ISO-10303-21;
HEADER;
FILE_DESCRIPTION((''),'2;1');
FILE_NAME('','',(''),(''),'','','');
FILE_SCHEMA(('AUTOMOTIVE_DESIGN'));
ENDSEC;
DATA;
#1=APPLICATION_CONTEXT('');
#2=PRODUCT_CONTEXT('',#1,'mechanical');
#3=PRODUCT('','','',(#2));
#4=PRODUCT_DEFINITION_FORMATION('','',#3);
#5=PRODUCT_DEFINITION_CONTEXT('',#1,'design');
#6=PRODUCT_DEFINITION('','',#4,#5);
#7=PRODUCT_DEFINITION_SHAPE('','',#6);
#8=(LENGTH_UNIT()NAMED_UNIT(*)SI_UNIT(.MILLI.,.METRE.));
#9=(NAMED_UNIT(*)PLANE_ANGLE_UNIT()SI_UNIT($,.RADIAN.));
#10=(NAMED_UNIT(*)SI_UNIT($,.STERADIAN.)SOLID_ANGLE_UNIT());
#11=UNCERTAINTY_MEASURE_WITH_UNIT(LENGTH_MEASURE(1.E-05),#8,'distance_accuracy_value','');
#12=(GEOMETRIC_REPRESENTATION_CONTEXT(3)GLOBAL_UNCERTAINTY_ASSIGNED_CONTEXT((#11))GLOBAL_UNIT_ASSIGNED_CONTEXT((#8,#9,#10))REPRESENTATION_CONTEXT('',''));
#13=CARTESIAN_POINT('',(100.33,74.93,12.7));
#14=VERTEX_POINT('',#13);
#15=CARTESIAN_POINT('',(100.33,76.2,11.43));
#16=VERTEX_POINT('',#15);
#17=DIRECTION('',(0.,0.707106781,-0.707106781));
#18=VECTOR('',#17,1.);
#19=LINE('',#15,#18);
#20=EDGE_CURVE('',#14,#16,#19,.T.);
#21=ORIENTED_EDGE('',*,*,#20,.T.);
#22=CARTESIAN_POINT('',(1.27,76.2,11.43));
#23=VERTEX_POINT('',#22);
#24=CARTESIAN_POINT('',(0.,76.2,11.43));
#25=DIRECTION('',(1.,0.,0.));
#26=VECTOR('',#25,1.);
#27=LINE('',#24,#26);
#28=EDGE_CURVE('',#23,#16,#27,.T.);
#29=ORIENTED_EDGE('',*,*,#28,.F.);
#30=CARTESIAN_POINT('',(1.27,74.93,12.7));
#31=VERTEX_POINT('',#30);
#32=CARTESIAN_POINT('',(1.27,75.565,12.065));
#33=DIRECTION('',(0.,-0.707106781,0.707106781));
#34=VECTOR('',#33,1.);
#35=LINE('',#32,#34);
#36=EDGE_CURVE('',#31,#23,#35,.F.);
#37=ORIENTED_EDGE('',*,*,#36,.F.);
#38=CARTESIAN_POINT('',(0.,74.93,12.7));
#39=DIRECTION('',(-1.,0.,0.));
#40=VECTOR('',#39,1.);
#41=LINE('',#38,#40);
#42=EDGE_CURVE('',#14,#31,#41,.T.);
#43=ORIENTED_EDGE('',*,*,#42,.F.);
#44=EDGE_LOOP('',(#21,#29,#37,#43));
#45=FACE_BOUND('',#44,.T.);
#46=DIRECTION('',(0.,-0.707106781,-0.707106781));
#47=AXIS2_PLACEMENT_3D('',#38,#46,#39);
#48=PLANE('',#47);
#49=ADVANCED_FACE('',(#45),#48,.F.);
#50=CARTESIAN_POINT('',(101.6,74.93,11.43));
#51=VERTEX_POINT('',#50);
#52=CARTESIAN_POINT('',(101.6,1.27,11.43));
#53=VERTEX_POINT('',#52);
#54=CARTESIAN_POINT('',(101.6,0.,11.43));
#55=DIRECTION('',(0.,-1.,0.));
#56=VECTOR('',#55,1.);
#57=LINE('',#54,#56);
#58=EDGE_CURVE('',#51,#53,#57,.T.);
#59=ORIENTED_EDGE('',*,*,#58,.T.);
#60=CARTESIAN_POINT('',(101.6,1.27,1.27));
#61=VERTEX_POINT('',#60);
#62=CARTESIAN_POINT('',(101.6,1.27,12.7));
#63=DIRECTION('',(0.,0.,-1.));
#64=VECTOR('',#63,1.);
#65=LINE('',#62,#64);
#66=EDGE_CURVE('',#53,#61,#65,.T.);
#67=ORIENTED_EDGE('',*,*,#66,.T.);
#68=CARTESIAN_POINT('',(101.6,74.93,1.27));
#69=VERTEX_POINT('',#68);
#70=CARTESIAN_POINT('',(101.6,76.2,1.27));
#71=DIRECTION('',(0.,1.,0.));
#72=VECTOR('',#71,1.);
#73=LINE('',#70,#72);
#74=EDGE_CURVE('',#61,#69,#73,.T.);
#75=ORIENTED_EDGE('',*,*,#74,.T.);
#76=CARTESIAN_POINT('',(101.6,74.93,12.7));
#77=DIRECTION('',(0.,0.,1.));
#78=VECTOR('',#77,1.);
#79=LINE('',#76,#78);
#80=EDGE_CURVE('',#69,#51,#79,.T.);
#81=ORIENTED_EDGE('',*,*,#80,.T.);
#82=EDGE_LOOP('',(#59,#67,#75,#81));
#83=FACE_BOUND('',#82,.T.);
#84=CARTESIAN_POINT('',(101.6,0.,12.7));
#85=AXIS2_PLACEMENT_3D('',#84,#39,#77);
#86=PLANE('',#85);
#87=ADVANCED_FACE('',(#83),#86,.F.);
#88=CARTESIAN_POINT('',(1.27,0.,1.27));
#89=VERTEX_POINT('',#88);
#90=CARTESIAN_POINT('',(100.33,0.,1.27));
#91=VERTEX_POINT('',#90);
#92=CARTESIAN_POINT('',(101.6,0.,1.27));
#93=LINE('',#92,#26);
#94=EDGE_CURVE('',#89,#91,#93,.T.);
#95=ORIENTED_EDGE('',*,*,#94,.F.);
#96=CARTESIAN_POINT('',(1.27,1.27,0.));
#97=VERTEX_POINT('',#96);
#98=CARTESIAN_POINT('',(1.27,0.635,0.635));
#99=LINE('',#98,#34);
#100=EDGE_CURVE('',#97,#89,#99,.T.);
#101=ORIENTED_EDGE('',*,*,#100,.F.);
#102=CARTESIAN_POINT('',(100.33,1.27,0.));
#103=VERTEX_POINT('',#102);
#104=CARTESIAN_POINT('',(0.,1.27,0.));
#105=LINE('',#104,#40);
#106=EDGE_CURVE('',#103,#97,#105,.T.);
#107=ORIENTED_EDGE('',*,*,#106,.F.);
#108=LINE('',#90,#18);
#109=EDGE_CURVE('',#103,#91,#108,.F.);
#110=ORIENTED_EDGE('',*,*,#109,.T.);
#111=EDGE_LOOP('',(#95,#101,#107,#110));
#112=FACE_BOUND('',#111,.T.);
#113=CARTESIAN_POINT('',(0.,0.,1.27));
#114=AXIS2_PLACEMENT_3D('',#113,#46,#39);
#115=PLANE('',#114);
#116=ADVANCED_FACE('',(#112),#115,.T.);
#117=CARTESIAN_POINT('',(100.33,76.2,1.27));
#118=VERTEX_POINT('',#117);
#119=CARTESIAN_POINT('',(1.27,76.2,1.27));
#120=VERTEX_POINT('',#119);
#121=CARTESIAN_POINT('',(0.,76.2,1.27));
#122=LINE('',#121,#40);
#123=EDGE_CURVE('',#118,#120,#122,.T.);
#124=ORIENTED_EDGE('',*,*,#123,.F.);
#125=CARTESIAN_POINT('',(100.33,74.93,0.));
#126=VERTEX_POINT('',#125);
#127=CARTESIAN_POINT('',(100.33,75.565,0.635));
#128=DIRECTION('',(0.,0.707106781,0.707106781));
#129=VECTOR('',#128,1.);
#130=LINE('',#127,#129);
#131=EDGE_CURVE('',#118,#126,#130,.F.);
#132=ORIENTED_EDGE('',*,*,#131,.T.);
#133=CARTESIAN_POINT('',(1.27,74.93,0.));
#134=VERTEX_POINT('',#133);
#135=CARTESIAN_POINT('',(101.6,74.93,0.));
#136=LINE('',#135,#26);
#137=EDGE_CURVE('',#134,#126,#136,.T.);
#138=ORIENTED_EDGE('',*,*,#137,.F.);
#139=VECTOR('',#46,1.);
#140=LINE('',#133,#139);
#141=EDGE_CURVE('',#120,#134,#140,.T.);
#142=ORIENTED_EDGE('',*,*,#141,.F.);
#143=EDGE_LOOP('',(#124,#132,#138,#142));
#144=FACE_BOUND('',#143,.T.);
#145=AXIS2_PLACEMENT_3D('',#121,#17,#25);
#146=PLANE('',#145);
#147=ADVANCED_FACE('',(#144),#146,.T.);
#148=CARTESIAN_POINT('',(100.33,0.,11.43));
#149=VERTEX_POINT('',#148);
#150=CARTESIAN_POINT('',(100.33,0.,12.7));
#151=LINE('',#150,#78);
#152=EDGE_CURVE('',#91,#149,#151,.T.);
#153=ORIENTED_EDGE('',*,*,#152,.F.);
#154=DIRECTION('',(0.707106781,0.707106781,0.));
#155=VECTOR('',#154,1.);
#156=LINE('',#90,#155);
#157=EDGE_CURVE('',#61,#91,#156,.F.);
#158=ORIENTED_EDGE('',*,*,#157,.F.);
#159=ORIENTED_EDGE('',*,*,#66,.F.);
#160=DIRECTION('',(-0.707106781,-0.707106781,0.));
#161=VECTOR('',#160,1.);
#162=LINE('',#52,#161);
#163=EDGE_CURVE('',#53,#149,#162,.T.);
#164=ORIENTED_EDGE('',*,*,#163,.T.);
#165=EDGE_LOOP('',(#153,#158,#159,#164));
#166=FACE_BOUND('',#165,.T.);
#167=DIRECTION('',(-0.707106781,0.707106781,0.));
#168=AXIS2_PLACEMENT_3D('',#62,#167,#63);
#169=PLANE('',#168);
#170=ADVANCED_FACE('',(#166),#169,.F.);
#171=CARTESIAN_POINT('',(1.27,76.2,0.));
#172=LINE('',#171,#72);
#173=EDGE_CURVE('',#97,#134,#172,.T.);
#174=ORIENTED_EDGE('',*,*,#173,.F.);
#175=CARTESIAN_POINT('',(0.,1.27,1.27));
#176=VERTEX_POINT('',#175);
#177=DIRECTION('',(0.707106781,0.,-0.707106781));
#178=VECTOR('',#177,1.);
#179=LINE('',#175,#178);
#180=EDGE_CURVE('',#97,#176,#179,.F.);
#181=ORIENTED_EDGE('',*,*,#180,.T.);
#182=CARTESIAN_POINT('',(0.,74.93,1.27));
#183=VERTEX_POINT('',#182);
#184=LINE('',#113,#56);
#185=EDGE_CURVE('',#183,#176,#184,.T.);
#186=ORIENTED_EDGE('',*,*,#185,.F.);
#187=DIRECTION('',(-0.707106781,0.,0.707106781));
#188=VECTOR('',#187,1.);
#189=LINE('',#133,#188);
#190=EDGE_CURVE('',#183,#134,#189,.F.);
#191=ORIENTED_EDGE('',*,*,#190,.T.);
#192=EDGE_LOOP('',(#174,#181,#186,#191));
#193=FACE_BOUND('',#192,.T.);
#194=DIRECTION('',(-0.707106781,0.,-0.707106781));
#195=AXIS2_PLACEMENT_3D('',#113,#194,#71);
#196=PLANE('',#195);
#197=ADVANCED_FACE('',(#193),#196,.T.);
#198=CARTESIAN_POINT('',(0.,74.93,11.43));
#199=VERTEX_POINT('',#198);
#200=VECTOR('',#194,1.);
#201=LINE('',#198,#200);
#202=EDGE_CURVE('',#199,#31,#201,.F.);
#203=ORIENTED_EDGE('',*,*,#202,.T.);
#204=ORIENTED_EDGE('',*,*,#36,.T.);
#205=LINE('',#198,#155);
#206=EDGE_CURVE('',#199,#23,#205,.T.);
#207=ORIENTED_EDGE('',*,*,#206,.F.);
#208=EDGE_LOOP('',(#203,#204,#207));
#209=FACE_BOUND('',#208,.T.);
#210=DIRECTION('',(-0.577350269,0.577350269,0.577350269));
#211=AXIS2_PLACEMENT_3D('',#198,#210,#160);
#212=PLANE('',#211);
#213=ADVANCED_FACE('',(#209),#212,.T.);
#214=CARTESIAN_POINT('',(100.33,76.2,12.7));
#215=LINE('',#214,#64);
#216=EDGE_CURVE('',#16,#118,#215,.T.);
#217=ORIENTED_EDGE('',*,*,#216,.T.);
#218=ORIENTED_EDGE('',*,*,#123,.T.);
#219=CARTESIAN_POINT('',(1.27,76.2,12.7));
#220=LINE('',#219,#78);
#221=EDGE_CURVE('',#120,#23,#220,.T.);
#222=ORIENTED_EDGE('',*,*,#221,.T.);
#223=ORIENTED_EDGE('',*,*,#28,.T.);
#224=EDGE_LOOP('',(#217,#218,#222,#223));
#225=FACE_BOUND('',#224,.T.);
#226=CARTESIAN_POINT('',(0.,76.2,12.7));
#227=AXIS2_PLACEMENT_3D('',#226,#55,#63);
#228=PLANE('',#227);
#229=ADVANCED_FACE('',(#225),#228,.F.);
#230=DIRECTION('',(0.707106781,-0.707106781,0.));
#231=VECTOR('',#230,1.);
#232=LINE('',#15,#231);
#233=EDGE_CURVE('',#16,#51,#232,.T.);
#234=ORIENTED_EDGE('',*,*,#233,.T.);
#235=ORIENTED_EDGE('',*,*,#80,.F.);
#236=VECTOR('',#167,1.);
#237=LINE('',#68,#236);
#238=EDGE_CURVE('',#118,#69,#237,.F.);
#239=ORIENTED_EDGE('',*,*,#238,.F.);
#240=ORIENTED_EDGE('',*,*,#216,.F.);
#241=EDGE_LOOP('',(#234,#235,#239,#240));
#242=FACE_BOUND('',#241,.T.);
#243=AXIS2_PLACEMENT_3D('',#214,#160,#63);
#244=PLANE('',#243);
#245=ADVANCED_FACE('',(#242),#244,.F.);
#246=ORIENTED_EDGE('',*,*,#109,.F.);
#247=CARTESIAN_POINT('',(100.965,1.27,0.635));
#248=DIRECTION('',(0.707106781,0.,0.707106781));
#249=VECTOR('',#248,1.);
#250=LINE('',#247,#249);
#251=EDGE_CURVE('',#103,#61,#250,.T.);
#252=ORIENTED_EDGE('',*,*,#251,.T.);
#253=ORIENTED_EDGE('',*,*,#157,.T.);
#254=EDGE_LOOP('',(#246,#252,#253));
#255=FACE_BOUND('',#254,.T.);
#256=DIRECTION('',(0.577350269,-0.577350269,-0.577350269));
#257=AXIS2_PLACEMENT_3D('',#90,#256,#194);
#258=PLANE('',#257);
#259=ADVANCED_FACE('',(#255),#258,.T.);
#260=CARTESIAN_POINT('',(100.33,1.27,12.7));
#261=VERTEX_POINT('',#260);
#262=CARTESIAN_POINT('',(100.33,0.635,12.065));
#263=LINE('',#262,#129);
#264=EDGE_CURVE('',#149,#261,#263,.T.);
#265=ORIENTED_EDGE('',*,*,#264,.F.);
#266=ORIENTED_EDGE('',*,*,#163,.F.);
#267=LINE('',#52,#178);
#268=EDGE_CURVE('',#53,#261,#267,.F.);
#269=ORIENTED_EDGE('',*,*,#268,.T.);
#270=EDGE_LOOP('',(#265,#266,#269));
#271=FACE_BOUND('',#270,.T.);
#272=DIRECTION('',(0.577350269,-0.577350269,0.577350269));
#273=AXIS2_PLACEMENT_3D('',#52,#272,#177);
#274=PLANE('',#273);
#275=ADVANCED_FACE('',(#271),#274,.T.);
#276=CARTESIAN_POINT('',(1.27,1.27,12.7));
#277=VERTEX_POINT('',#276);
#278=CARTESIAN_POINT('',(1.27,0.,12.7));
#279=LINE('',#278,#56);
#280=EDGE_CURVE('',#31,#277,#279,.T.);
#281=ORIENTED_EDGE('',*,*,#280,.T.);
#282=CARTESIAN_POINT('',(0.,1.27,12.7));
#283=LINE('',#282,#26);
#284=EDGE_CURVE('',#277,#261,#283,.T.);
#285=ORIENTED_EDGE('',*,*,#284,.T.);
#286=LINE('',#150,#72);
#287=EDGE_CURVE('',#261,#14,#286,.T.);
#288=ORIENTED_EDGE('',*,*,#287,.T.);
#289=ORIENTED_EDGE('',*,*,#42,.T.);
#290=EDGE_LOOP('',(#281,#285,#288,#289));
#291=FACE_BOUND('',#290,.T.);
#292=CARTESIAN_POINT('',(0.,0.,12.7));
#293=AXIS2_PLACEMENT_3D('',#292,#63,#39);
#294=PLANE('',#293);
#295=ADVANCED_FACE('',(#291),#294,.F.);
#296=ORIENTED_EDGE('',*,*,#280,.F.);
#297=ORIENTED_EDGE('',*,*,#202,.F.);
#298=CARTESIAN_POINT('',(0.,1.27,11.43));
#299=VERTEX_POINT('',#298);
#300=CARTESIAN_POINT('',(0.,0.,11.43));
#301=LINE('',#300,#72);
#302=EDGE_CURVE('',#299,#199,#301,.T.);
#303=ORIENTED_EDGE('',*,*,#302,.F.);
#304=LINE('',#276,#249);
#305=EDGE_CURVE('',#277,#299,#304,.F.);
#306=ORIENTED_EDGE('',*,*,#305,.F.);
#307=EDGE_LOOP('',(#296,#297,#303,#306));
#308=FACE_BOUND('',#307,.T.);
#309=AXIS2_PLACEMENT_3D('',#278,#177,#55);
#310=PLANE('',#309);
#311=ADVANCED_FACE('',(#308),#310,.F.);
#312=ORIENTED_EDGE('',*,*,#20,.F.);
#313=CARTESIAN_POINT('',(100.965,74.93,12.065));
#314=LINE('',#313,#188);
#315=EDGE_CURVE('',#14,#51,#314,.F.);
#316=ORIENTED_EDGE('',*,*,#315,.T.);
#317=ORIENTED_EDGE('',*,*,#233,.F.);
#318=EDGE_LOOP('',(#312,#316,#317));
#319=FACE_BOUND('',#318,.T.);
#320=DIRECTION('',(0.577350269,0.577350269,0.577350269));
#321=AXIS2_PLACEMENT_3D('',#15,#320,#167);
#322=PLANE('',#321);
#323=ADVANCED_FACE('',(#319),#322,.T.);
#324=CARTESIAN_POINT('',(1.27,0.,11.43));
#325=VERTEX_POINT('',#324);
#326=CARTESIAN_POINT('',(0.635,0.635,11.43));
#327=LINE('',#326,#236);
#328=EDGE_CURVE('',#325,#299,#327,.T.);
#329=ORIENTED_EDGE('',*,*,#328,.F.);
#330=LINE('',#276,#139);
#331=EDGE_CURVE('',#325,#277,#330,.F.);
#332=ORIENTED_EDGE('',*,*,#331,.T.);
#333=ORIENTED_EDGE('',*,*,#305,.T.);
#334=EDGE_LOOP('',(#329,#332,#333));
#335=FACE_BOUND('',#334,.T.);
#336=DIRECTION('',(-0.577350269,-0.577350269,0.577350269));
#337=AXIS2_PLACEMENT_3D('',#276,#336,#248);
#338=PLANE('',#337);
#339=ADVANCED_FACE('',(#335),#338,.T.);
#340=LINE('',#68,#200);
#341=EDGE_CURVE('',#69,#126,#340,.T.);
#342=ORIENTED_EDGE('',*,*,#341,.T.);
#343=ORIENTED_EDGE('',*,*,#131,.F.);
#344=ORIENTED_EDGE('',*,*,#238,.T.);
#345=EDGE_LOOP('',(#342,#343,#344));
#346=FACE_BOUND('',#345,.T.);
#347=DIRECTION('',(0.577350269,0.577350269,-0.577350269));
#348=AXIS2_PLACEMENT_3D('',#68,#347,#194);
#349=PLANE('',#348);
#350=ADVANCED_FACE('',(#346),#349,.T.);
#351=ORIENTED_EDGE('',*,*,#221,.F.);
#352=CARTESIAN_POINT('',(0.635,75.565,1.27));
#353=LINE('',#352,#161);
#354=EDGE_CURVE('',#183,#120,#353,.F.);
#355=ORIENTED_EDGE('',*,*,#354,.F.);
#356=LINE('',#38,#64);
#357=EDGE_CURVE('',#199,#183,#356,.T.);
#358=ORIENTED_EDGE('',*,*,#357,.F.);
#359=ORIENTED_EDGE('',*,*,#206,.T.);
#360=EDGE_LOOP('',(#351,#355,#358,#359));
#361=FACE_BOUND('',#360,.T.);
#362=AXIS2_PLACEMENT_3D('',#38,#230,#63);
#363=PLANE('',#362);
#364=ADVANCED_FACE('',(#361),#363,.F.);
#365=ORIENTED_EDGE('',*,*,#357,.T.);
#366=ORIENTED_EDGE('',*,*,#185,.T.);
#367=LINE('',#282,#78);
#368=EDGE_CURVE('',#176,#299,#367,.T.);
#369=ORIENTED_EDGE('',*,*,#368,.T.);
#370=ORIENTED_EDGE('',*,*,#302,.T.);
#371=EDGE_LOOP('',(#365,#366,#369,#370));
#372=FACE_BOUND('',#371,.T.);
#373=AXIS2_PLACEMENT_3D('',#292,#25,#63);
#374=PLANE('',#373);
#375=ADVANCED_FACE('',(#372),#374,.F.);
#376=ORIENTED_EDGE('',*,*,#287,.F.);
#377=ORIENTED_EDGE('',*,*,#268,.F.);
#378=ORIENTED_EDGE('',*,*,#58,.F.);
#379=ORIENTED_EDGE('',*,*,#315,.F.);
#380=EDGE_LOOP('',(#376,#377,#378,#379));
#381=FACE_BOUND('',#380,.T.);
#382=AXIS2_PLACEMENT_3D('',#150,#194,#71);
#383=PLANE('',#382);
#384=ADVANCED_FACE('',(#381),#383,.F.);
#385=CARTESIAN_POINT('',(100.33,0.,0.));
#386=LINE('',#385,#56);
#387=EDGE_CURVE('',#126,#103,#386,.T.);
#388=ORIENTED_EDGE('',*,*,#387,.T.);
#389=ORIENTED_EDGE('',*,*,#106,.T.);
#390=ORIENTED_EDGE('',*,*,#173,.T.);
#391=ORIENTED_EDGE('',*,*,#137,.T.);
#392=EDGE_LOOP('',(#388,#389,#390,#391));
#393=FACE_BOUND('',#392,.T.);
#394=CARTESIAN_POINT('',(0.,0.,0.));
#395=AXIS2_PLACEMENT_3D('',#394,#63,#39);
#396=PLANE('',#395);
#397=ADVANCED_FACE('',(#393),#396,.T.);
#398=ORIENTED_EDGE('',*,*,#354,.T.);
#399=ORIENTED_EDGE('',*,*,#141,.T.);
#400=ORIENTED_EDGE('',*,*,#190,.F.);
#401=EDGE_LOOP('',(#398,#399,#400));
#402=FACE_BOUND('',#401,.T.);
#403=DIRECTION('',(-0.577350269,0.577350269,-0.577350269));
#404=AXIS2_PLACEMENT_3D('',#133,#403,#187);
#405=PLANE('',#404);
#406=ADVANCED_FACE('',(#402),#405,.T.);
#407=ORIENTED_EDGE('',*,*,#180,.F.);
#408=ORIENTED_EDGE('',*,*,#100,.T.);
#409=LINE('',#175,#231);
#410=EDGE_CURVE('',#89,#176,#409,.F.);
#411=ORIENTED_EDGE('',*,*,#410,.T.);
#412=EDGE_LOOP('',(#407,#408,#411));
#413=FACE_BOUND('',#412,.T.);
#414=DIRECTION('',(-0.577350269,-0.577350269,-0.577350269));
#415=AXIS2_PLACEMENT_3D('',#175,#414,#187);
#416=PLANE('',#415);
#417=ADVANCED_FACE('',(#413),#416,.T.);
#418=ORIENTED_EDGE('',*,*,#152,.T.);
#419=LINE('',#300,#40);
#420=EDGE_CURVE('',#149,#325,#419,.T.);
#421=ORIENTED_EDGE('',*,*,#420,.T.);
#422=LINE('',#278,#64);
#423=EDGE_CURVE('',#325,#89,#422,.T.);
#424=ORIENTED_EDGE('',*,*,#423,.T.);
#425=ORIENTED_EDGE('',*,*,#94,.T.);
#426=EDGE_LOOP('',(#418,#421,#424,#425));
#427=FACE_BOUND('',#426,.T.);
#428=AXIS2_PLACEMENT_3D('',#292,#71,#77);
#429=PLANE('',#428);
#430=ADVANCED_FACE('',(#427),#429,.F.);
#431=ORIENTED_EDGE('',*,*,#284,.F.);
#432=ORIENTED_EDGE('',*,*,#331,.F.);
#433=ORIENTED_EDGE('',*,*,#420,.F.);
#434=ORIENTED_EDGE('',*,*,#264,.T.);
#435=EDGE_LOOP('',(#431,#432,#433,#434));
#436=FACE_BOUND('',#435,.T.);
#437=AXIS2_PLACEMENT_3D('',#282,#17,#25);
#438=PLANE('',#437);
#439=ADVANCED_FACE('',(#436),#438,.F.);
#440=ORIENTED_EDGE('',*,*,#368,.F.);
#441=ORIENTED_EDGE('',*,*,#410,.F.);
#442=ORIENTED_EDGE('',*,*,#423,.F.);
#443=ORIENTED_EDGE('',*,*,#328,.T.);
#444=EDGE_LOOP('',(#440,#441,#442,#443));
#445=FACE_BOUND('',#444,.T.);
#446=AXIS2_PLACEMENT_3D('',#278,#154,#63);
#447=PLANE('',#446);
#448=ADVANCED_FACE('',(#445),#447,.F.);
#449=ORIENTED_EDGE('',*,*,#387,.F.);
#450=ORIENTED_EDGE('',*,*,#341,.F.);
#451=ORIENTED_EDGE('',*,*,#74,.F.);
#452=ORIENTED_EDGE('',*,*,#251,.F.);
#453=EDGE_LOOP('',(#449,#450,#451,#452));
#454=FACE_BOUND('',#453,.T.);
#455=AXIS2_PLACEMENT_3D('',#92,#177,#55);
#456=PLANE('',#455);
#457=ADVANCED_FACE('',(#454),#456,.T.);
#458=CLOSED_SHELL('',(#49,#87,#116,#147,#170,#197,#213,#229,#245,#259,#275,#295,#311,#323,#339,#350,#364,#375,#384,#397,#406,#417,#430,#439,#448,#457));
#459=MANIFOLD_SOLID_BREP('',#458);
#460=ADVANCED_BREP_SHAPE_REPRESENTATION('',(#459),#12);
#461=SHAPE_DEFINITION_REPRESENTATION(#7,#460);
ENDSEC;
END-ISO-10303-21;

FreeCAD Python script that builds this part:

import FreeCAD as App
import Part
import Sketcher
from FreeCAD import Vector
Q = App.Units.Quantity

doc = App.newDocument("Part")
params = doc.addObject("Spreadsheet::Sheet", "Params")
for row, (alias, value) in enumerate([
    ("sketch1_width", "4 in"),
    ("sketch1_height", "3 in"),
    ("pad1_length", "0.5 in"),
    ("chamfer_size", "0.05 in"),
], start=1):
    params.set(f"A{row}", alias)
    params.set(f"B{row}", "=" + value)
    params.setAlias(f"B{row}", alias)

body = doc.addObject("PartDesign::Body", "Body")

sketch1 = body.newObject("Sketcher::SketchObject", "Sketch")
sketch1.AttachmentSupport = (doc.getObject("XY_Plane"), [""])
sketch1.MapMode = "FlatFace"
sketch1.addGeometry(Part.LineSegment(Vector(0, 76, 0), Vector(0, 0, 0)), False)
sketch1.addGeometry(Part.LineSegment(Vector(0, 0, 0), Vector(102, 0, 0)), False)
sketch1.addGeometry(Part.LineSegment(Vector(102, 0, 0), Vector(102, 76, 0)), False)
sketch1.addGeometry(Part.LineSegment(Vector(102, 76, 0), Vector(0, 76, 0)), False)
sketch1.addConstraint(Sketcher.Constraint("Coincident", 0, 2, 1, 1))
sketch1.addConstraint(Sketcher.Constraint("Coincident", 1, 2, 2, 1))
sketch1.addConstraint(Sketcher.Constraint("Coincident", 2, 2, 3, 1))
sketch1.addConstraint(Sketcher.Constraint("Coincident", 3, 2, 0, 1))
sketch1.addConstraint(Sketcher.Constraint("Vertical", 0))
sketch1.addConstraint(Sketcher.Constraint("Horizontal", 1))
sketch1.addConstraint(Sketcher.Constraint("Vertical", 2))
sketch1.addConstraint(Sketcher.Constraint("Horizontal", 3))
sketch1.addConstraint(Sketcher.Constraint("Coincident", 0, 2, -1, 1))
sketch1.addConstraint(Sketcher.Constraint("DistanceX", 1, 1, 1, 2, Q("4 in")))
sketch1.addConstraint(Sketcher.Constraint("DistanceY", 0, 2, 0, 1, Q("3 in")))
sketch1.setExpression("Constraints[9]", "Params.sketch1_width")
sketch1.setExpression("Constraints[10]", "Params.sketch1_height")
pad1 = body.newObject("PartDesign::Pad", "Pad")
pad1.Profile = sketch1
pad1.setExpression("Length", "Params.pad1_length")
doc.recompute()

chamfer = body.newObject("PartDesign::Chamfer", "Chamfer")
chamfer.Base = (pad1, ["Edge1"])
chamfer.UseAllEdges = True
chamfer.setExpression("Size", "Params.chamfer_size")

doc.recompute()
